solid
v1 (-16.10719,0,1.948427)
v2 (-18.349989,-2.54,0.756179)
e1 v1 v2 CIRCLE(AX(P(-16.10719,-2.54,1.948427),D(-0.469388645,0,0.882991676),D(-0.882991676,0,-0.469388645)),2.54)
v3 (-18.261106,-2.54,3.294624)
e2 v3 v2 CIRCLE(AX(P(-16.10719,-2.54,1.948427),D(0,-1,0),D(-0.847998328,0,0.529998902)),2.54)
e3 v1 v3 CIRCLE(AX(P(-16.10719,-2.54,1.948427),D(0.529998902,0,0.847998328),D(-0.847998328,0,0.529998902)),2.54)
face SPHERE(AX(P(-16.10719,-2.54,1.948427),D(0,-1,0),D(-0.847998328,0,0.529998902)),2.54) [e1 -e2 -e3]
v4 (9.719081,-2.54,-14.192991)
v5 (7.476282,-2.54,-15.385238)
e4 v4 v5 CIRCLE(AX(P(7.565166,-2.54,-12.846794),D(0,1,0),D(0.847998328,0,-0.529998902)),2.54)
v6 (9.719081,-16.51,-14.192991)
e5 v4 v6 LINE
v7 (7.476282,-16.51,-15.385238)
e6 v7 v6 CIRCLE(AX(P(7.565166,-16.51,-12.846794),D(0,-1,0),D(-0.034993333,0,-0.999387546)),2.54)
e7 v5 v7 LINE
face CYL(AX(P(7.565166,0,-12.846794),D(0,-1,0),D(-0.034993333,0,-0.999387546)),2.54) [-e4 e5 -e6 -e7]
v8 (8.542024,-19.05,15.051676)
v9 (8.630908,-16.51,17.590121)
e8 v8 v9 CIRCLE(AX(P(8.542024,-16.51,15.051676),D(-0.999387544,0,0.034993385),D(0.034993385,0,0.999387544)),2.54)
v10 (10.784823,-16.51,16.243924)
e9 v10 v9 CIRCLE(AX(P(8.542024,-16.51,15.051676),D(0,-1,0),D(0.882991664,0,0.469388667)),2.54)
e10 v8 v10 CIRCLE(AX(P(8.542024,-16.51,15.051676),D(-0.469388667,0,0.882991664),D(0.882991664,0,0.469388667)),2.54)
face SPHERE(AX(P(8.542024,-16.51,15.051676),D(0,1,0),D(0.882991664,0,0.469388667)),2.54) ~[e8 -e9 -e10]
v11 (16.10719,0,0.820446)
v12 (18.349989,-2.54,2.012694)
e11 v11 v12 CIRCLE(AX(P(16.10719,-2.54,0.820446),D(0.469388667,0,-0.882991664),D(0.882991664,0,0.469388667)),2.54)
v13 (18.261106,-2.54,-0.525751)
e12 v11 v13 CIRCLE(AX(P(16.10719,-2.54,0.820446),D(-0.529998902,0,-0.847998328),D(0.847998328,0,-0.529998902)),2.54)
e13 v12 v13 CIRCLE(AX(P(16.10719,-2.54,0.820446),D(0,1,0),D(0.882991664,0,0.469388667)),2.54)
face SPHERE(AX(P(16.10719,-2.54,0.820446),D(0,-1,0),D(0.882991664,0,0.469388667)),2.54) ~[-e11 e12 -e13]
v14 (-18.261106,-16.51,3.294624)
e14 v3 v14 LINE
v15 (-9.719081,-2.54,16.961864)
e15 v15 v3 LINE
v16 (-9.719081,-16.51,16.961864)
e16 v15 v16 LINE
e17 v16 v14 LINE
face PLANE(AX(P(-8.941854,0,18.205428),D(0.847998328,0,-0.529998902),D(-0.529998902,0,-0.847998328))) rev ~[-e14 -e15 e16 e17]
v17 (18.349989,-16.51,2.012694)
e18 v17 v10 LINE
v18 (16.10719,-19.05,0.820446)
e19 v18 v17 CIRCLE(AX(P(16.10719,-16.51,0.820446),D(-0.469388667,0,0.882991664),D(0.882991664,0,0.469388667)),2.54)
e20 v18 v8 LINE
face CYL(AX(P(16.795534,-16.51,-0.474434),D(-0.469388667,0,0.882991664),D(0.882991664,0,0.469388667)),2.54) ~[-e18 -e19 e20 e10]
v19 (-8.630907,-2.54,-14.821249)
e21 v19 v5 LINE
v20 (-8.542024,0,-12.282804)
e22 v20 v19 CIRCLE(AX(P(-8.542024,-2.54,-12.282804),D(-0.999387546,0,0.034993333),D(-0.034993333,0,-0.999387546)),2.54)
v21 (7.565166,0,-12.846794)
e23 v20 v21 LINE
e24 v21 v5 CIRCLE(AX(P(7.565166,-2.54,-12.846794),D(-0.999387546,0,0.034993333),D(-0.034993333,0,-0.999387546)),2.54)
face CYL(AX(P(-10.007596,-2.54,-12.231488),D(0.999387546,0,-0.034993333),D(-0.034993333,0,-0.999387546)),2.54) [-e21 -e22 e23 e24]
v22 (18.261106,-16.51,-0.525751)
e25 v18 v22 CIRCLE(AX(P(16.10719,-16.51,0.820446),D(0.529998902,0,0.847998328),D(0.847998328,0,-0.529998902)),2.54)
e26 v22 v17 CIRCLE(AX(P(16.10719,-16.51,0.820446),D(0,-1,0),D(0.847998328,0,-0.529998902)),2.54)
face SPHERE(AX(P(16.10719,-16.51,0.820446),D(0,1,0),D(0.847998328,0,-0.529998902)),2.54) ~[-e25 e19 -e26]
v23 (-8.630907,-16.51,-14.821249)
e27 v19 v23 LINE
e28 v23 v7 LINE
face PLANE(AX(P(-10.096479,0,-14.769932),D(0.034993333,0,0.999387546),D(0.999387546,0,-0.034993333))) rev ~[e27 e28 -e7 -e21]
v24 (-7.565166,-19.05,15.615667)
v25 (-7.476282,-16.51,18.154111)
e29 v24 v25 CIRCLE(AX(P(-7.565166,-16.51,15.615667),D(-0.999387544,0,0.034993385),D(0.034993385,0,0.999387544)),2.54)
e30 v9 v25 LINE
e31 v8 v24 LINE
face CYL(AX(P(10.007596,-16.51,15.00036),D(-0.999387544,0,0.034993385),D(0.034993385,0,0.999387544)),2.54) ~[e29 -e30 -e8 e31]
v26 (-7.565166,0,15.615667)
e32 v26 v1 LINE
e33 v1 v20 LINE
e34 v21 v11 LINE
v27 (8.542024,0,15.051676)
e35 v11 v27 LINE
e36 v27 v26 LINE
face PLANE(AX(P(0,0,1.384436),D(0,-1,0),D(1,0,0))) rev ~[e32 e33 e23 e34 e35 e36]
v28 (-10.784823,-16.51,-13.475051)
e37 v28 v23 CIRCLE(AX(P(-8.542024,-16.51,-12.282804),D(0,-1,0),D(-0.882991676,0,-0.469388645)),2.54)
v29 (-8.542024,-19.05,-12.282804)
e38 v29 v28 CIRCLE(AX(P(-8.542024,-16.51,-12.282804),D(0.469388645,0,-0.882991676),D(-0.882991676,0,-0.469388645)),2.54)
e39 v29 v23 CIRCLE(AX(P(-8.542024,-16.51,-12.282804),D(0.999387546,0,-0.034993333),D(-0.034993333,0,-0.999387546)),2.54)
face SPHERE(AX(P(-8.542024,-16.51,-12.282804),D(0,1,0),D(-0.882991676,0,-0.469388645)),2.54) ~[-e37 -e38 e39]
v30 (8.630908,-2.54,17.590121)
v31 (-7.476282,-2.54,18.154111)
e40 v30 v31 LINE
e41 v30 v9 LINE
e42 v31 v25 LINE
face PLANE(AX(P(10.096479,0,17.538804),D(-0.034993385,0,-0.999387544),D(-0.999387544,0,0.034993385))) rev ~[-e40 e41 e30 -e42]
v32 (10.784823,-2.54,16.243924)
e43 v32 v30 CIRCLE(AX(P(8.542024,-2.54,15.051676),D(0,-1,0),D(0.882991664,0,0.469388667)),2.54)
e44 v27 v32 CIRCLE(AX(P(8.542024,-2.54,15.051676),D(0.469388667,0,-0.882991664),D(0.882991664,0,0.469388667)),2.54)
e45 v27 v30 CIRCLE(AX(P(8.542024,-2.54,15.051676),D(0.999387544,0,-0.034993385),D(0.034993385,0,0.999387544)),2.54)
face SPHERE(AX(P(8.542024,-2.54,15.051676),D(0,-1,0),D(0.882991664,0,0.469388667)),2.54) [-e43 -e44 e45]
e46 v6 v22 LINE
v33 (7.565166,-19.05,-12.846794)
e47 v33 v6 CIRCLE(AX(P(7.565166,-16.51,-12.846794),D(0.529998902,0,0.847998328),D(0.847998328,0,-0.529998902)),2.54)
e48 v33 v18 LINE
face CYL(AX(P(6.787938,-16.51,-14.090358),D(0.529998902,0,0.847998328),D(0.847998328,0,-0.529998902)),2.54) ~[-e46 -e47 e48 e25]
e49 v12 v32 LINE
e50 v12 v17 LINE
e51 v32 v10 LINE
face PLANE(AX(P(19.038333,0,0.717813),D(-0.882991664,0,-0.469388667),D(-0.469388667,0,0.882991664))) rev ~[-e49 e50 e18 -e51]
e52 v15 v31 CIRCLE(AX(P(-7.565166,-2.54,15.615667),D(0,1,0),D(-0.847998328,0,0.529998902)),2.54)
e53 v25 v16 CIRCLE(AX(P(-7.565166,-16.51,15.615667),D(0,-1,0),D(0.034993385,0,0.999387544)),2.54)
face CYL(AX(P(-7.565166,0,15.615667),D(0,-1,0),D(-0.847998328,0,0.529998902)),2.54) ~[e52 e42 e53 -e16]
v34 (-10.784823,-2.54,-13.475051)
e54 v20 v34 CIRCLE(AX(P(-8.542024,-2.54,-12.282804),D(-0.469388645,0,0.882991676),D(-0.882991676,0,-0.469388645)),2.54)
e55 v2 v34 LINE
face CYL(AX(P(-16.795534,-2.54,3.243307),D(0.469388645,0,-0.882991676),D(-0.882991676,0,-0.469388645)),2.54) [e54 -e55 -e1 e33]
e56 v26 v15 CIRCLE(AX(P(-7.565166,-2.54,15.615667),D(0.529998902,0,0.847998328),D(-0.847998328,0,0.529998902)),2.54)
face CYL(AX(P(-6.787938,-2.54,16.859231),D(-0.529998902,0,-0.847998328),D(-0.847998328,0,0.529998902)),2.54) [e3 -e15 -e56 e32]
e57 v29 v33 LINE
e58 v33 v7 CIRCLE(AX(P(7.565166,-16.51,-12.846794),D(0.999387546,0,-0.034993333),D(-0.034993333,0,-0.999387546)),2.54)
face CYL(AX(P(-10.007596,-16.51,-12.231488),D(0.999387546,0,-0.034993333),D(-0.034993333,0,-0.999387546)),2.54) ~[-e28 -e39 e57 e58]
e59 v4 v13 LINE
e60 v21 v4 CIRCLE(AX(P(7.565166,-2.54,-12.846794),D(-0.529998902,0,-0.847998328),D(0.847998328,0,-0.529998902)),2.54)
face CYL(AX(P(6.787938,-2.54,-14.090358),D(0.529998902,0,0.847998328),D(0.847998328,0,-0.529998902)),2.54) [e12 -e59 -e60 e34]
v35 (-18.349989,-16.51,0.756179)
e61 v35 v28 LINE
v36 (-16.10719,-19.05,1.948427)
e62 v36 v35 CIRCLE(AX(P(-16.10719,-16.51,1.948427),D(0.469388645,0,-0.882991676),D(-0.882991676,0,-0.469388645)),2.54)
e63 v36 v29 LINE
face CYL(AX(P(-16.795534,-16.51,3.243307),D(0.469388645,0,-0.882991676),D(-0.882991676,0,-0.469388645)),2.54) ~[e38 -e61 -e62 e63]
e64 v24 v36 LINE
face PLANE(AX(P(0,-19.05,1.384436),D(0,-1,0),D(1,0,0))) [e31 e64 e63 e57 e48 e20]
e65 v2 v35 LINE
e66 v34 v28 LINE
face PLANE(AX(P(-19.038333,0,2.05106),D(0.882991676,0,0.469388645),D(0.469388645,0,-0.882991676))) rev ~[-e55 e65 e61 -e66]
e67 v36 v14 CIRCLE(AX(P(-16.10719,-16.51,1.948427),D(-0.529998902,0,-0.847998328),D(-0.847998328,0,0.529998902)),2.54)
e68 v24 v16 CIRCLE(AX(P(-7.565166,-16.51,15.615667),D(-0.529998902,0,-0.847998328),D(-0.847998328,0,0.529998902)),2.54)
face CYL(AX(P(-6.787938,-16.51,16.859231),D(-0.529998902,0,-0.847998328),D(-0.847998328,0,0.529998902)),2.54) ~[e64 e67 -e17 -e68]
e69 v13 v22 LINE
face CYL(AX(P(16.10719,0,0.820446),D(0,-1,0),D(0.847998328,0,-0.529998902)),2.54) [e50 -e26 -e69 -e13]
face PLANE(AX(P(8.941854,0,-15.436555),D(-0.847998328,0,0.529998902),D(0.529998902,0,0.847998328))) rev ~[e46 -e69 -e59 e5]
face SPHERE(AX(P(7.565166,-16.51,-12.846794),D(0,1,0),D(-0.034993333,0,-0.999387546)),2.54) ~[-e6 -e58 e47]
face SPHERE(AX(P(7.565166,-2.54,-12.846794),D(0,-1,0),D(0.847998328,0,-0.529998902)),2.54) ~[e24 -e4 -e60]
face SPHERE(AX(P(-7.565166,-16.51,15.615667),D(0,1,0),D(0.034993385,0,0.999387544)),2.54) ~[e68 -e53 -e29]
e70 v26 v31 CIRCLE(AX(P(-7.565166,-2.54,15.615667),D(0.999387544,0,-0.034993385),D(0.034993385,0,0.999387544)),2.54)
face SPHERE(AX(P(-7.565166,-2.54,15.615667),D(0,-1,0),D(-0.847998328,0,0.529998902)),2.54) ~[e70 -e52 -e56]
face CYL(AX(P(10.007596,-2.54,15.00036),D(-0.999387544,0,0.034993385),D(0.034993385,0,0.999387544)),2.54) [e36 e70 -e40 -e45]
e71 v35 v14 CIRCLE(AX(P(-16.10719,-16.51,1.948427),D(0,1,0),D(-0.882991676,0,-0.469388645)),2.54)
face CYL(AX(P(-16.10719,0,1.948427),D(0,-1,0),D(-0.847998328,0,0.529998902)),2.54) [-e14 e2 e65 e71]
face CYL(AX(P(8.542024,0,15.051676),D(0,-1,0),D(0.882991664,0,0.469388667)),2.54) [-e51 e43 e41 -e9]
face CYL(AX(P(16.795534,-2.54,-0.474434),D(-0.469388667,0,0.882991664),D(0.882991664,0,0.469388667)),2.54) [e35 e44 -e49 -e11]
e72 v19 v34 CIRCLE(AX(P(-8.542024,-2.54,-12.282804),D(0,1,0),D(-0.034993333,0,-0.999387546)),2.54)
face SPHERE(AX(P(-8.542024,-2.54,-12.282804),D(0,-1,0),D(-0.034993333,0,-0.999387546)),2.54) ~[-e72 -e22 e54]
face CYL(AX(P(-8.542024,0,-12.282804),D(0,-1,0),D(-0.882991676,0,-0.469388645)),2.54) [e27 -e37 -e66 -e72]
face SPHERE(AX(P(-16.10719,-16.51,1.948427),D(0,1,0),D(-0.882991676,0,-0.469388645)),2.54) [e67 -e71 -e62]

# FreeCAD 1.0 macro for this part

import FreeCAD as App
import Part
import Sketcher

V = App.Vector
Q = App.Units.Quantity


def add_polygon(sketch, points):
    """Adds a closed chain of lines whose ends are joined by coincident constraints."""
    first, n = sketch.GeometryCount, len(points)
    for a, b in zip(points, points[1:] + points[:1]):
        sketch.addGeometry(Part.LineSegment(App.Vector(*a, 0), App.Vector(*b, 0)), False)
    for i in range(n):
        sketch.addConstraint(Sketcher.Constraint("Coincident", first + i, 2, first + (i + 1) % n, 1))

doc = App.newDocument("Part")
body = doc.addObject("PartDesign::Body", "Body")

# Sketch on XZ plane
sketch1 = body.newObject("Sketcher::SketchObject", "Sketch")
sketch1.AttachmentSupport = (doc.getObject("XZ_Plane"), [""])
sketch1.MapMode = "FlatFace"
add_polygon(sketch1, [(-9, 18), (-19, 2), (-10, -15), (9, -15), (19, 1), (10, 18)])  # lines 0-5
sketch1.addConstraint(Sketcher.Constraint("Parallel", 0, 3))
sketch1.addConstraint(Sketcher.Constraint("Parallel", 1, 4))
sketch1.addConstraint(Sketcher.Constraint("Parallel", 2, 5))
sketch1.addConstraint(Sketcher.Constraint("Equal", 0, 1))
sketch1.addConstraint(Sketcher.Constraint("Equal", 1, 2))
sketch1.addConstraint(Sketcher.Constraint("Equal", 2, 3))
sketch1.addConstraint(Sketcher.Constraint("Distance", 0, Q("0.75 in")))
sketch1.addConstraint(Sketcher.Constraint("DistanceY", -1, 1, 0, 2, 2.05106))
sketch1.addConstraint(Sketcher.Constraint("DistanceX", 1, 2, -1, 1, 10.096479))
sketch1.addConstraint(Sketcher.Constraint("DistanceX", -1, 1, 4, 2, 10.096479))
sketch1.addConstraint(Sketcher.Constraint("DistanceY", -1, 1, 5, 2, 18.205428))
sketch1.addConstraint(Sketcher.Constraint("DistanceY", 3, 2, 4, 2, 16.820991))
pad1 = body.newObject("PartDesign::Pad", "Pad")
pad1.Profile = sketch1
pad1.Length = Q("0.75 in")
doc.recompute()

fillet = body.newObject("PartDesign::Fillet", "Fillet")
fillet.Base = (pad1, ["Edge1"])
fillet.UseAllEdges = True
fillet.Radius = Q("0.1 in")

doc.recompute()
